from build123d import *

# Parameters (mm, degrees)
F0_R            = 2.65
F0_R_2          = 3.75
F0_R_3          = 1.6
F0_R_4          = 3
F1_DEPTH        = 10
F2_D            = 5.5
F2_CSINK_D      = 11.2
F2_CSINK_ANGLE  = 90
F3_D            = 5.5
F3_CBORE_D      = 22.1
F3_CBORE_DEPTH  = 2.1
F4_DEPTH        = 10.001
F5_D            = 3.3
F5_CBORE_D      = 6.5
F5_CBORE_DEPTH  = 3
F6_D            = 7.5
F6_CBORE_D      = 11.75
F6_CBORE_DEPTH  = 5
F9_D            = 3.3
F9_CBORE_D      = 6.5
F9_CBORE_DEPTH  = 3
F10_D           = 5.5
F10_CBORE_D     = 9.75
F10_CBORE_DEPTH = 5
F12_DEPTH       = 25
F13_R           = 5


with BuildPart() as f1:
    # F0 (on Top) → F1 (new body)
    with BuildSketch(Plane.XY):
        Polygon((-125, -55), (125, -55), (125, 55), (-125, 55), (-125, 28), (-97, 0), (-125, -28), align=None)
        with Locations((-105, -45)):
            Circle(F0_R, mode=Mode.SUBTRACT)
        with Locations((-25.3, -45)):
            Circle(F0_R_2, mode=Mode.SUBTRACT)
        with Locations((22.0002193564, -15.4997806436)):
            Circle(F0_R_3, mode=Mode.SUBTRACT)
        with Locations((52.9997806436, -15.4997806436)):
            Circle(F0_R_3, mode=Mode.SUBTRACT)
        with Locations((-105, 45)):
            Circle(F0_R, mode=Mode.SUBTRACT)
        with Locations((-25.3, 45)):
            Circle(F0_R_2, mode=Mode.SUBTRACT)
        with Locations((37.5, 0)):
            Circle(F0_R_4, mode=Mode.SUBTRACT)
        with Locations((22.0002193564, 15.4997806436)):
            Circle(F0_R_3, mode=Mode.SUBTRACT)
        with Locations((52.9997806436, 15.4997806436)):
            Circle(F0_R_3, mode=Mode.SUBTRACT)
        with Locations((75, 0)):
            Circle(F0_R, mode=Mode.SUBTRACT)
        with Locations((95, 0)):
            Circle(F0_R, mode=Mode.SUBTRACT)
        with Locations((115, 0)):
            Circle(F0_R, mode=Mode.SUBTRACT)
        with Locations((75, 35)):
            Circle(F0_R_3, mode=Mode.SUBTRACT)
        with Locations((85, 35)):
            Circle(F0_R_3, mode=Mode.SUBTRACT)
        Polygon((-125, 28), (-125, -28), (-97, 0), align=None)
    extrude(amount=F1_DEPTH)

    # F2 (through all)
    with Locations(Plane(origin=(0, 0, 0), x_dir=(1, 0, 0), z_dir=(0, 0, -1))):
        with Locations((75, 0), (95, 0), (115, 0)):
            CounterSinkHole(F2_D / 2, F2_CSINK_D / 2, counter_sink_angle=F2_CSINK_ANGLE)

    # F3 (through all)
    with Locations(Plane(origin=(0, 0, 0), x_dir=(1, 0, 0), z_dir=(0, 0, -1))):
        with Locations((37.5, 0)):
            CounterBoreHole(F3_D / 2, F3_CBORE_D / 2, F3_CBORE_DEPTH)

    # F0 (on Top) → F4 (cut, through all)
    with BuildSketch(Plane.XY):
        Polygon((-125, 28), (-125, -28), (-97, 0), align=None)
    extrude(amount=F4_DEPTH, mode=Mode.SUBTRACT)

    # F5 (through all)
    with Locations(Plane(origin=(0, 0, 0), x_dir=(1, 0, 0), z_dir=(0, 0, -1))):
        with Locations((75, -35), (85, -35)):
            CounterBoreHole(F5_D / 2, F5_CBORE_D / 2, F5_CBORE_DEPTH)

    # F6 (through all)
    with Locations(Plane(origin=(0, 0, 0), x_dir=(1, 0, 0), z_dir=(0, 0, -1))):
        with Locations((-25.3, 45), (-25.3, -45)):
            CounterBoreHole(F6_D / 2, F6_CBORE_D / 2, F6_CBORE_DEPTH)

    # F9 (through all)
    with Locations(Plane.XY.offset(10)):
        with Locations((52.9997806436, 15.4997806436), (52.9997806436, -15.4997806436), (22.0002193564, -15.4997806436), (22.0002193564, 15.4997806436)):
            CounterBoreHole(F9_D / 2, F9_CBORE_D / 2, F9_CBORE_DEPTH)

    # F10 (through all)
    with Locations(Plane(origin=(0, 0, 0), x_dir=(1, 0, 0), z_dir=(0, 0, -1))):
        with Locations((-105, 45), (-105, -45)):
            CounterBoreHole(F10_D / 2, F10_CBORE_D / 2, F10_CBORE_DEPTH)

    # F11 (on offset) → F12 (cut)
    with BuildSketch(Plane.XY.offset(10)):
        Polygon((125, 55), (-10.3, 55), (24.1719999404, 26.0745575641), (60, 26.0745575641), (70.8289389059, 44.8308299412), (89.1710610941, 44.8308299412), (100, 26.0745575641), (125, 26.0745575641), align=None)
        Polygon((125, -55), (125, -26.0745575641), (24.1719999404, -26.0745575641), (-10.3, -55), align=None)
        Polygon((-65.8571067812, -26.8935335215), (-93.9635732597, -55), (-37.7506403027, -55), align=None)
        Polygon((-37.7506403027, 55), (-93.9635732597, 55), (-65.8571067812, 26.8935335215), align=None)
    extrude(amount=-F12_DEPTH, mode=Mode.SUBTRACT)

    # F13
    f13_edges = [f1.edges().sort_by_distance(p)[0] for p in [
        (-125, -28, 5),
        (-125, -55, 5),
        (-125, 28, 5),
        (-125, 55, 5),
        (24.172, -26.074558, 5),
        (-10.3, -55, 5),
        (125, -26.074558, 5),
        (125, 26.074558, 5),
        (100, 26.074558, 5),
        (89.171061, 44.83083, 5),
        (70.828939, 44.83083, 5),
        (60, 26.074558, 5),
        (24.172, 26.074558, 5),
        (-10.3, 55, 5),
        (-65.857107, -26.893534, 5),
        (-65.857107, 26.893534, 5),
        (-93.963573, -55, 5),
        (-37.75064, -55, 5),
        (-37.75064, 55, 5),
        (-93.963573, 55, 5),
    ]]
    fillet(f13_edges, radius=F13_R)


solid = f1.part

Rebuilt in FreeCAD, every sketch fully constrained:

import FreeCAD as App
import Part
import Sketcher
from FreeCAD import Vector
Q = App.Units.Quantity


def edges_at(feature, points):
    """Names of the edges that pass closest to the given points."""
    edges = feature.Shape.Edges
    near = lambda p: min(range(len(edges)), key=lambda i: edges[i].distToShape(Part.Vertex(*p))[0])
    return sorted({f"Edge{near(p) + 1}" for p in points})


def add_polygon(sketch, points):
    """Adds a closed chain of lines whose ends are joined by coincident constraints."""
    first, n = sketch.GeometryCount, len(points)
    for a, b in zip(points, points[1:] + points[:1]):
        sketch.addGeometry(Part.LineSegment(App.Vector(*a, 0), App.Vector(*b, 0)), False)
    for i in range(n):
        sketch.addConstraint(Sketcher.Constraint("Coincident", first + i, 2, first + (i + 1) % n, 1))

doc = App.newDocument("Part")
body = doc.addObject("PartDesign::Body", "Body")

# Sketch on XY plane
sketch1 = body.newObject("Sketcher::SketchObject", "Sketch")
sketch1.AttachmentSupport = (doc.getObject("XY_Plane"), [""])
sketch1.MapMode = "FlatFace"
add_polygon(sketch1, [(-125, -55), (125, -55), (125, 55), (-125, 55)])  # lines 0-3
sketch1.addGeometry(Part.Circle(Vector(-105, -45, 0), Vector(0, 0, 1), 2.65), False)  # 4
sketch1.addGeometry(Part.Circle(Vector(-25.3, -45, 0), Vector(0, 0, 1), 3.75), False)  # 5
sketch1.addGeometry(Part.Circle(Vector(22.000219, -15.499781, 0), Vector(0, 0, 1), 1.6), False)  # 6
sketch1.addGeometry(Part.Circle(Vector(52.999781, -15.499781, 0), Vector(0, 0, 1), 1.6), False)  # 7
sketch1.addGeometry(Part.Circle(Vector(-105, 45, 0), Vector(0, 0, 1), 2.65), False)  # 8
sketch1.addGeometry(Part.Circle(Vector(-25.3, 45, 0), Vector(0, 0, 1), 3.75), False)  # 9
sketch1.addGeometry(Part.Circle(Vector(37.5, 0, 0), Vector(0, 0, 1), 3), False)  # 10
sketch1.addGeometry(Part.Circle(Vector(22.000219, 15.499781, 0), Vector(0, 0, 1), 1.6), False)  # 11
sketch1.addGeometry(Part.Circle(Vector(52.999781, 15.499781, 0), Vector(0, 0, 1), 1.6), False)  # 12
sketch1.addGeometry(Part.Circle(Vector(75, 0, 0), Vector(0, 0, 1), 2.65), False)  # 13
sketch1.addGeometry(Part.Circle(Vector(95, 0, 0), Vector(0, 0, 1), 2.65), False)  # 14
sketch1.addGeometry(Part.Circle(Vector(115, 0, 0), Vector(0, 0, 1), 2.65), False)  # 15
sketch1.addGeometry(Part.Circle(Vector(75, 35, 0), Vector(0, 0, 1), 1.6), False)  # 16
sketch1.addGeometry(Part.Circle(Vector(85, 35, 0), Vector(0, 0, 1), 1.6), False)  # 17
sketch1.addConstraint(Sketcher.Constraint("Horizontal", 0))
sketch1.addConstraint(Sketcher.Constraint("Vertical", 1))
sketch1.addConstraint(Sketcher.Constraint("Horizontal", 2))
sketch1.addConstraint(Sketcher.Constraint("Vertical", 3))
sketch1.addConstraint(Sketcher.Constraint("Equal", 6, 7))
sketch1.addConstraint(Sketcher.Constraint("Equal", 4, 8))
sketch1.addConstraint(Sketcher.Constraint("Equal", 5, 9))
sketch1.addConstraint(Sketcher.Constraint("Equal", 7, 11))
sketch1.addConstraint(Sketcher.Constraint("Equal", 11, 12))
sketch1.addConstraint(Sketcher.Constraint("Equal", 8, 13))
sketch1.addConstraint(Sketcher.Constraint("Equal", 13, 14))
sketch1.addConstraint(Sketcher.Constraint("Equal", 14, 15))
sketch1.addConstraint(Sketcher.Constraint("Equal", 12, 16))
sketch1.addConstraint(Sketcher.Constraint("Equal", 16, 17))
sketch1.addConstraint(Sketcher.Constraint("Symmetric", 0, 2, 2, 2, -1, 1))
sketch1.addConstraint(Sketcher.Constraint("Symmetric", 4, 3, 8, 3, -1))
sketch1.addConstraint(Sketcher.Constraint("Symmetric", 5, 3, 9, 3, -1))
sketch1.addConstraint(Sketcher.Constraint("Symmetric", 6, 3, 11, 3, -1))
sketch1.addConstraint(Sketcher.Constraint("Symmetric", 7, 3, 12, 3, -1))
sketch1.addConstraint(Sketcher.Constraint("PointOnObject", 10, 3, -1))
sketch1.addConstraint(Sketcher.Constraint("PointOnObject", 13, 3, -1))
sketch1.addConstraint(Sketcher.Constraint("PointOnObject", 14, 3, -1))
sketch1.addConstraint(Sketcher.Constraint("PointOnObject", 15, 3, -1))
sketch1.addConstraint(Sketcher.Constraint("Horizontal", 4, 3, 5, 3))
sketch1.addConstraint(Sketcher.Constraint("Horizontal", 6, 3, 7, 3))
sketch1.addConstraint(Sketcher.Constraint("Horizontal", 16, 3, 17, 3))
sketch1.addConstraint(Sketcher.Constraint("Vertical", 13, 3, 16, 3))
sketch1.addConstraint(Sketcher.Constraint("Diameter", 10, 6.0))
sketch1.addConstraint(Sketcher.Constraint("Diameter", 4, 5.3))
sketch1.addConstraint(Sketcher.Constraint("Diameter", 5, 7.5))
sketch1.addConstraint(Sketcher.Constraint("Diameter", 6, 3.2))
sketch1.addConstraint(Sketcher.Constraint("DistanceX", 0, 1, 0, 2, 250.0))
sketch1.addConstraint(Sketcher.Constraint("DistanceY", 1, 1, 1, 2, 110.0))
sketch1.addConstraint(Sketcher.Constraint("DistanceX", 4, 3, -1, 1, 105.0))
sketch1.addConstraint(Sketcher.Constraint("DistanceY", 4, 3, -1, 1, 45.0))
sketch1.addConstraint(Sketcher.Constraint("DistanceX", -1, 1, 13, 3, 75.0))
sketch1.addConstraint(Sketcher.Constraint("DistanceX", -1, 1, 14, 3, 95.0))
sketch1.addConstraint(Sketcher.Constraint("DistanceX", -1, 1, 15, 3, 115.0))
sketch1.addConstraint(Sketcher.Constraint("DistanceY", -1, 1, 16, 3, 35.0))
sketch1.addConstraint(Sketcher.Constraint("DistanceX", -1, 1, 17, 3, 85.0))
sketch1.addConstraint(Sketcher.Constraint("DistanceX", 5, 3, -1, 1, 25.3))
sketch1.addConstraint(Sketcher.Constraint("DistanceX", -1, 1, 10, 3, 37.5))
sketch1.addConstraint(Sketcher.Constraint("DistanceX", -1, 1, 6, 3, 22.000219))
sketch1.addConstraint(Sketcher.Constraint("DistanceY", 6, 3, -1, 1, 15.499781))
sketch1.addConstraint(Sketcher.Constraint("DistanceX", -1, 1, 7, 3, 52.999781))
pad1 = body.newObject("PartDesign::Pad", "Pad")
pad1.Profile = sketch1
pad1.Length = 10

# Sketch on XY plane
sketch2 = body.newObject("Sketcher::SketchObject", "Sketch001")
sketch2.AttachmentSupport = (doc.getObject("XY_Plane"), [""])
sketch2.MapMode = "FlatFace"
sketch2.addGeometry(Part.Circle(Vector(75, 0, 0), Vector(0, 0, 1), 2.75), False)
sketch2.addGeometry(Part.Circle(Vector(95, 0, 0), Vector(0, 0, 1), 2.75), False)
sketch2.addGeometry(Part.Circle(Vector(115, 0, 0), Vector(0, 0, 1), 2.75), False)
sketch2.addConstraint(Sketcher.Constraint("Equal", 0, 1))
sketch2.addConstraint(Sketcher.Constraint("Equal", 1, 2))
sketch2.addConstraint(Sketcher.Constraint("PointOnObject", 0, 3, -1))
sketch2.addConstraint(Sketcher.Constraint("PointOnObject", 1, 3, -1))
sketch2.addConstraint(Sketcher.Constraint("PointOnObject", 2, 3, -1))
sketch2.addConstraint(Sketcher.Constraint("Diameter", 0, 5.5))
sketch2.addConstraint(Sketcher.Constraint("DistanceX", -1, 1, 0, 3, 75.0))
sketch2.addConstraint(Sketcher.Constraint("DistanceX", -1, 1, 1, 3, 95.0))
sketch2.addConstraint(Sketcher.Constraint("DistanceX", -1, 1, 2, 3, 115.0))
doc.recompute()
hole = body.newObject("PartDesign::Hole", "Hole")
hole.Profile = sketch2
hole.ThreadType = "None"
hole.Diameter = 5.5
hole.DepthType = "ThroughAll"
hole.HoleCutType = "Countersink"
hole.HoleCutDiameter = 11.2
hole.HoleCutCountersinkAngle = 90
hole.Reversed = True

# Sketch on XY plane
sketch3 = body.newObject("Sketcher::SketchObject", "Sketch002")
sketch3.AttachmentSupport = (doc.getObject("XY_Plane"), [""])
sketch3.MapMode = "FlatFace"
sketch3.addGeometry(Part.Circle(Vector(37.5, 0, 0), Vector(0, 0, 1), 2.75), False)
sketch3.addConstraint(Sketcher.Constraint("PointOnObject", 0, 3, -1))
sketch3.addConstraint(Sketcher.Constraint("Diameter", 0, 5.5))
sketch3.addConstraint(Sketcher.Constraint("DistanceX", -1, 1, 0, 3, 37.5))
doc.recompute()
hole2 = body.newObject("PartDesign::Hole", "Hole001")
hole2.Profile = sketch3
hole2.ThreadType = "None"
hole2.Diameter = 5.5
hole2.DepthType = "ThroughAll"
hole2.HoleCutType = "Counterbore"
hole2.HoleCutDiameter = 22.1
hole2.HoleCutDepth = 2.1
hole2.Reversed = True

# Sketch on XY plane
sketch4 = body.newObject("Sketcher::SketchObject", "Sketch003")
sketch4.AttachmentSupport = (doc.getObject("XY_Plane"), [""])
sketch4.MapMode = "FlatFace"
add_polygon(sketch4, [(-125, 28), (-125, -28), (-97, 0)])  # lines 0-2
sketch4.addConstraint(Sketcher.Constraint("Vertical", 0))
sketch4.addConstraint(Sketcher.Constraint("PointOnObject", 1, 2, -1))
sketch4.addConstraint(Sketcher.Constraint("Perpendicular", 1, 2))
sketch4.addConstraint(Sketcher.Constraint("Equal", 1, 2))
sketch4.addConstraint(Sketcher.Constraint("DistanceY", 0, 2, 0, 1, 56.0))
sketch4.addConstraint(Sketcher.Constraint("DistanceX", 0, 2, -1, 1, 125.0))
pocket1 = body.newObject("PartDesign::Pocket", "Pocket")
pocket1.Profile = sketch4
pocket1.Type = "ThroughAll"
pocket1.Reversed = True

# Sketch on XY plane
sketch5 = body.newObject("Sketcher::SketchObject", "Sketch004")
sketch5.AttachmentSupport = (doc.getObject("XY_Plane"), [""])
sketch5.MapMode = "FlatFace"
sketch5.addGeometry(Part.Circle(Vector(75, 35, 0), Vector(0, 0, 1), 1.65), False)
sketch5.addGeometry(Part.Circle(Vector(85, 35, 0), Vector(0, 0, 1), 1.65), False)
sketch5.addConstraint(Sketcher.Constraint("Equal", 0, 1))
sketch5.addConstraint(Sketcher.Constraint("Horizontal", 0, 3, 1, 3))
sketch5.addConstraint(Sketcher.Constraint("Diameter", 0, 3.3))
sketch5.addConstraint(Sketcher.Constraint("DistanceX", -1, 1, 0, 3, 75.0))
sketch5.addConstraint(Sketcher.Constraint("DistanceY", -1, 1, 0, 3, 35.0))
sketch5.addConstraint(Sketcher.Constraint("DistanceX", -1, 1, 1, 3, 85.0))
doc.recompute()
hole3 = body.newObject("PartDesign::Hole", "Hole002")
hole3.Profile = sketch5
hole3.ThreadType = "None"
hole3.Diameter = 3.3
hole3.DepthType = "ThroughAll"
hole3.HoleCutType = "Counterbore"
hole3.HoleCutDiameter = 6.5
hole3.HoleCutDepth = 3
hole3.Reversed = True

# Sketch on XY plane
sketch6 = body.newObject("Sketcher::SketchObject", "Sketch005")
sketch6.AttachmentSupport = (doc.getObject("XY_Plane"), [""])
sketch6.MapMode = "FlatFace"
sketch6.addGeometry(Part.Circle(Vector(-25.3, -45, 0), Vector(0, 0, 1), 3.75), False)
sketch6.addGeometry(Part.Circle(Vector(-25.3, 45, 0), Vector(0, 0, 1), 3.75), False)
sketch6.addConstraint(Sketcher.Constraint("Equal", 0, 1))
sketch6.addConstraint(Sketcher.Constraint("Symmetric", 0, 3, 1, 3, -1))
sketch6.addConstraint(Sketcher.Constraint("Diameter", 0, 7.5))
sketch6.addConstraint(Sketcher.Constraint("DistanceY", 0, 3, -1, 1, 45.0))
sketch6.addConstraint(Sketcher.Constraint("DistanceX", 0, 3, -1, 1, 25.3))
doc.recompute()
hole4 = body.newObject("PartDesign::Hole", "Hole003")
hole4.Profile = sketch6
hole4.ThreadType = "None"
hole4.Diameter = 7.5
hole4.DepthType = "ThroughAll"
hole4.HoleCutType = "Counterbore"
hole4.HoleCutDiameter = 11.75
hole4.HoleCutDepth = 5
hole4.Reversed = True

# Sketch on XY plane
sketch7 = body.newObject("Sketcher::SketchObject", "Sketch006")
sketch7.AttachmentSupport = (doc.getObject("XY_Plane"), [""])
sketch7.MapMode = "FlatFace"
sketch7.AttachmentOffset = App.Placement(Vector(0, 0, 10), App.Rotation())
sketch7.addGeometry(Part.Circle(Vector(52.999781, 15.499781, 0), Vector(0, 0, 1), 1.65), False)
sketch7.addGeometry(Part.Circle(Vector(52.999781, -15.499781, 0), Vector(0, 0, 1), 1.65), False)
sketch7.addGeometry(Part.Circle(Vector(22.000219, -15.499781, 0), Vector(0, 0, 1), 1.65), False)
sketch7.addGeometry(Part.Circle(Vector(22.000219, 15.499781, 0), Vector(0, 0, 1), 1.65), False)
sketch7.addConstraint(Sketcher.Constraint("Equal", 0, 1))
sketch7.addConstraint(Sketcher.Constraint("Equal", 1, 2))
sketch7.addConstraint(Sketcher.Constraint("Equal", 2, 3))
sketch7.addConstraint(Sketcher.Constraint("Symmetric", 0, 3, 1, 3, -1))
sketch7.addConstraint(Sketcher.Constraint("Symmetric", 2, 3, 3, 3, -1))
sketch7.addConstraint(Sketcher.Constraint("Horizontal", 1, 3, 2, 3))
sketch7.addConstraint(Sketcher.Constraint("Diameter", 0, 3.3))
sketch7.addConstraint(Sketcher.Constraint("DistanceX", -1, 1, 0, 3, 52.999781))
sketch7.addConstraint(Sketcher.Constraint("DistanceY", -1, 1, 0, 3, 15.499781))
sketch7.addConstraint(Sketcher.Constraint("DistanceX", -1, 1, 2, 3, 22.000219))
doc.recompute()
hole5 = body.newObject("PartDesign::Hole", "Hole004")
hole5.Profile = sketch7
hole5.ThreadType = "None"
hole5.Diameter = 3.3
hole5.DepthType = "ThroughAll"
hole5.HoleCutType = "Counterbore"
hole5.HoleCutDiameter = 6.5
hole5.HoleCutDepth = 3

# Sketch on XY plane
sketch8 = body.newObject("Sketcher::SketchObject", "Sketch007")
sketch8.AttachmentSupport = (doc.getObject("XY_Plane"), [""])
sketch8.MapMode = "FlatFace"
sketch8.addGeometry(Part.Circle(Vector(-105, -45, 0), Vector(0, 0, 1), 2.75), False)
sketch8.addGeometry(Part.Circle(Vector(-105, 45, 0), Vector(0, 0, 1), 2.75), False)
sketch8.addConstraint(Sketcher.Constraint("Equal", 0, 1))
sketch8.addConstraint(Sketcher.Constraint("Symmetric", 0, 3, 1, 3, -1))
sketch8.addConstraint(Sketcher.Constraint("Diameter", 0, 5.5))
sketch8.addConstraint(Sketcher.Constraint("DistanceX", 0, 3, -1, 1, 105.0))
sketch8.addConstraint(Sketcher.Constraint("DistanceY", 0, 3, -1, 1, 45.0))
doc.recompute()
hole6 = body.newObject("PartDesign::Hole", "Hole005")
hole6.Profile = sketch8
hole6.ThreadType = "None"
hole6.Diameter = 5.5
hole6.DepthType = "ThroughAll"
hole6.HoleCutType = "Counterbore"
hole6.HoleCutDiameter = 9.75
hole6.HoleCutDepth = 5
hole6.Reversed = True

# Sketch on XY plane
sketch9 = body.newObject("Sketcher::SketchObject", "Sketch008")
sketch9.AttachmentSupport = (doc.getObject("XY_Plane"), [""])
sketch9.MapMode = "FlatFace"
sketch9.AttachmentOffset = App.Placement(Vector(0, 0, 10), App.Rotation())
add_polygon(sketch9, [(125, 55), (-10.3, 55), (24.172, 26.074558), (60, 26.074558), (70.828939, 44.83083), (89.171061, 44.83083), (100, 26.074558), (125, 26.074558)])  # lines 0-7
add_polygon(sketch9, [(125, -55), (125, -26.074558), (24.172, -26.074558), (-10.3, -55)])  # lines 8-11
add_polygon(sketch9, [(-65.857107, -26.893534), (-93.963573, -55), (-37.75064, -55)])  # lines 12-14
add_polygon(sketch9, [(-37.75064, 55), (-93.963573, 55), (-65.857107, 26.893534)])  # lines 15-17
sketch9.addConstraint(Sketcher.Constraint("Horizontal", 0))
sketch9.addConstraint(Sketcher.Constraint("Horizontal", 2))
sketch9.addConstraint(Sketcher.Constraint("Horizontal", 4))
sketch9.addConstraint(Sketcher.Constraint("Horizontal", 6))
sketch9.addConstraint(Sketcher.Constraint("Vertical", 7))
sketch9.addConstraint(Sketcher.Constraint("Vertical", 8))
sketch9.addConstraint(Sketcher.Constraint("Horizontal", 9))
sketch9.addConstraint(Sketcher.Constraint("Horizontal", 11))
sketch9.addConstraint(Sketcher.Constraint("Horizontal", 13))
sketch9.addConstraint(Sketcher.Constraint("Horizontal", 15))
sketch9.addConstraint(Sketcher.Constraint("Symmetric", 6, 2, 8, 2, -1))
sketch9.addConstraint(Sketcher.Constraint("Symmetric", 1, 2, 9, 2, -1))
sketch9.addConstraint(Sketcher.Constraint("Symmetric", 0, 2, 10, 2, -1))
sketch9.addConstraint(Sketcher.Constraint("Symmetric", 12, 2, 15, 2, -1))
sketch9.addConstraint(Sketcher.Constraint("Symmetric", 14, 2, 16, 2, -1))
sketch9.addConstraint(Sketcher.Constraint("Perpendicular", 12, 14))
sketch9.addConstraint(Sketcher.Constraint("Parallel", 14, 16))
sketch9.addConstraint(Sketcher.Constraint("Perpendicular", 16, 17))
sketch9.addConstraint(Sketcher.Constraint("Horizontal", 11, 2, 12, 2))
sketch9.addConstraint(Sketcher.Constraint("Equal", 3, 5))
sketch9.addConstraint(Sketcher.Constraint("DistanceX", 6, 1, 6, 2, 25.0))
sketch9.addConstraint(Sketcher.Constraint("Angle", 1, Q("-40 deg")))
sketch9.addConstraint(Sketcher.Constraint("Angle", 3, Q("60 deg")))
sketch9.addConstraint(Sketcher.Constraint("Distance", 1, 45.0))
sketch9.addConstraint(Sketcher.Constraint("DistanceX", 0, 2, 0, 1, 135.3))
sketch9.addConstraint(Sketcher.Constraint("DistanceY", -1, 1, 0, 2, 55.0))
sketch9.addConstraint(Sketcher.Constraint("DistanceX", -1, 1, 2, 2, 60.0))
sketch9.addConstraint(Sketcher.Constraint("DistanceX", -1, 1, 5, 2, 100.0))
sketch9.addConstraint(Sketcher.Constraint("DistanceX", 4, 1, 4, 2, 18.342122))
sketch9.addConstraint(Sketcher.Constraint("DistanceX", 13, 1, 13, 2, 56.212933))
sketch9.addConstraint(Sketcher.Constraint("DistanceX", 13, 2, -1, 1, 37.75064))
pocket2 = body.newObject("PartDesign::Pocket", "Pocket001")
pocket2.Profile = sketch9
pocket2.Length = 25
doc.recompute()

fillet = body.newObject("PartDesign::Fillet", "Fillet")
fillet.Base = (pocket2, edges_at(pocket2, [
    (-125, -28, 5),
    (-125, -55, 5),
    (-125, 28, 5),
    (-125, 55, 5),
    (24.172, -26.075, 5),
    (-10.3, -55, 5),
    (125, -26.075, 5),
    (125, 26.075, 5),
    (100, 26.075, 5),
    (89.171, 44.831, 5),
    (70.829, 44.831, 5),
    (60, 26.075, 5),
    (24.172, 26.075, 5),
    (-10.3, 55, 5),
    (-65.857, -26.894, 5),
    (-65.857, 26.894, 5),
    (-93.964, -55, 5),
    (-37.751, -55, 5),
    (-37.751, 55, 5),
    (-93.964, 55, 5),
]))
fillet.Radius = 5

doc.recompute()
